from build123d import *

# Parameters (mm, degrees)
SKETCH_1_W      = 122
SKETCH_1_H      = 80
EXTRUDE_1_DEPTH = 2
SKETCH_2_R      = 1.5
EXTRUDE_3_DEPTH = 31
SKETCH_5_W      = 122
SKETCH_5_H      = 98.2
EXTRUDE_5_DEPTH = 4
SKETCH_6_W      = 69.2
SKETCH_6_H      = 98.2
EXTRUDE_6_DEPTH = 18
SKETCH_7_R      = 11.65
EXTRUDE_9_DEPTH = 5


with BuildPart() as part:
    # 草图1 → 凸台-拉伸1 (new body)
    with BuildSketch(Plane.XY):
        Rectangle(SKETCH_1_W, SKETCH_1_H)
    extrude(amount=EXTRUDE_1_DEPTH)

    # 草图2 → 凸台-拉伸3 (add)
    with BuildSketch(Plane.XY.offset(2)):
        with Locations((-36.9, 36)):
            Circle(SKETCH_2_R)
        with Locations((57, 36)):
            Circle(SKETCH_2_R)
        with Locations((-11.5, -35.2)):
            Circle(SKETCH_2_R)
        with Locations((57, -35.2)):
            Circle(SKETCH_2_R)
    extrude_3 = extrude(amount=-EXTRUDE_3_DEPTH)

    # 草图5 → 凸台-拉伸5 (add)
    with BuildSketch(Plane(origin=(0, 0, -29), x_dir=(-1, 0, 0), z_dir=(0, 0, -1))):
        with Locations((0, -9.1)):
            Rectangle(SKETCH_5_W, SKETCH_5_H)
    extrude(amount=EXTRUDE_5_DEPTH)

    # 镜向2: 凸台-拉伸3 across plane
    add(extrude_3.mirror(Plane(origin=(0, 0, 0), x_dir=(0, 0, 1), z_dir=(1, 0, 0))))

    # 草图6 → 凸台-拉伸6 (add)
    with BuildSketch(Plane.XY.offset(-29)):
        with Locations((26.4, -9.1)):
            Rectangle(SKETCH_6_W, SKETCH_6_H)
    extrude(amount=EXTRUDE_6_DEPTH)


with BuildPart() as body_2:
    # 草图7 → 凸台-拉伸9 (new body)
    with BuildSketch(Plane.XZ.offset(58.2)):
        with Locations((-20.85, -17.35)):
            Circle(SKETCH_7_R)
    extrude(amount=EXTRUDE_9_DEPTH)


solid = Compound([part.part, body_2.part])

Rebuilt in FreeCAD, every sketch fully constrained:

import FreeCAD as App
import Part
import Sketcher
Q = App.Units.Quantity

doc = App.newDocument("Part")
params = doc.addObject("Spreadsheet::Sheet", "Params")
for row, (alias, value) in enumerate([
    ("sketch1_width", "122 mm"),
    ("sketch1_height", "80 mm"),
    ("pad1_length", "2 mm"),
    ("sketch2_diameter", "3 mm"),
    ("pad2_length", "31 mm"),
    ("sketch3_width", "122 mm"),
    ("sketch3_height", "98.2 mm"),
    ("pad3_length", "4 mm"),
    ("sketch4_width", "69.2 mm"),
    ("sketch4_height", "98.2 mm"),
    ("pad4_length", "18 mm"),
    ("sketch5_diameter", "23.3 mm"),
    ("pad5_length", "5 mm"),
], start=1):
    params.set(f"A{row}", alias)
    params.set(f"B{row}", "=" + value)
    params.setAlias(f"B{row}", alias)

body = doc.addObject("PartDesign::Body", "Body")

sketch1 = doc.addObject("Sketcher::SketchObject", "Sketch")
body.addObject(sketch1)
sketch1.AttachmentSupport = (doc.XY_Plane, [""])
sketch1.MapMode = "FlatFace"
sketch1.addGeometry([
    Part.LineSegment(App.Vector(-61, 40, 0), App.Vector(-61, -40, 0)),
    Part.LineSegment(App.Vector(-61, -40, 0), App.Vector(61, -40, 0)),
    Part.LineSegment(App.Vector(61, -40, 0), App.Vector(61, 40, 0)),
    Part.LineSegment(App.Vector(61, 40, 0), App.Vector(-61, 40, 0)),
], False)
sketch1.addConstraint([
    Sketcher.Constraint("Coincident", 0, 2, 1, 1),
    Sketcher.Constraint("Coincident", 1, 2, 2, 1),
    Sketcher.Constraint("Coincident", 2, 2, 3, 1),
    Sketcher.Constraint("Coincident", 3, 2, 0, 1),
    Sketcher.Constraint("Vertical", 0),
    Sketcher.Constraint("Horizontal", 1),
    Sketcher.Constraint("Vertical", 2),
    Sketcher.Constraint("Horizontal", 3),
    Sketcher.Constraint("Symmetric", 0, 2, 2, 2, -1, 1),
    Sketcher.Constraint("DistanceX", 1, 1, 1, 2, Q("122 mm")),
    Sketcher.Constraint("DistanceY", 0, 2, 0, 1, Q("80 mm")),
])
sketch1.setExpression("Constraints[9]", "Params.sketch1_width")
sketch1.setExpression("Constraints[10]", "Params.sketch1_height")
pad1 = doc.addObject("PartDesign::Pad", "Pad")
body.addObject(pad1)
pad1.Profile = sketch1
pad1.setExpression("Length", "Params.pad1_length")

sketch2 = doc.addObject("Sketcher::SketchObject", "Sketch001")
body.addObject(sketch2)
sketch2.AttachmentSupport = (doc.XY_Plane, [""])
sketch2.MapMode = "FlatFace"
sketch2.AttachmentOffset = App.Placement(App.Vector(0, 0, 2), App.Rotation())
sketch2.addGeometry([
    Part.Circle(App.Vector(-36.9, 36, 0), App.Vector(0, 0, 1), 1.5),
    Part.Circle(App.Vector(57, 36, 0), App.Vector(0, 0, 1), 1.5),
    Part.Circle(App.Vector(-11.5, -35.2, 0), App.Vector(0, 0, 1), 1.5),
    Part.Circle(App.Vector(57, -35.2, 0), App.Vector(0, 0, 1), 1.5),
], False)
sketch2.addConstraint([
    Sketcher.Constraint("Equal", 0, 1),
    Sketcher.Constraint("Equal", 1, 2),
    Sketcher.Constraint("Equal", 2, 3),
    Sketcher.Constraint("Horizontal", 0, 3, 1, 3),
    Sketcher.Constraint("Horizontal", 2, 3, 3, 3),
    Sketcher.Constraint("Vertical", 1, 3, 3, 3),
    Sketcher.Constraint("Diameter", 0, Q("3 mm")),
    Sketcher.Constraint("DistanceY", -1, 1, 0, 3, Q("36 mm")),
    Sketcher.Constraint("DistanceX", -1, 1, 1, 3, Q("57 mm")),
    Sketcher.Constraint("DistanceX", 0, 3, -1, 1, Q("36.9 mm")),
    Sketcher.Constraint("DistanceX", 2, 3, -1, 1, Q("11.5 mm")),
    Sketcher.Constraint("DistanceY", 2, 3, -1, 1, Q("35.2 mm")),
])
sketch2.setExpression("Constraints[6]", "Params.sketch2_diameter")
pad2 = doc.addObject("PartDesign::Pad", "Pad001")
body.addObject(pad2)
pad2.Profile = sketch2
pad2.setExpression("Length", "Params.pad2_length")
pad2.Reversed = True

sketch3 = doc.addObject("Sketcher::SketchObject", "Sketch002")
body.addObject(sketch3)
sketch3.AttachmentSupport = (doc.XY_Plane, [""])
sketch3.MapMode = "FlatFace"
sketch3.AttachmentOffset = App.Placement(App.Vector(0, 0, -29), App.Rotation())
sketch3.addGeometry([
    Part.LineSegment(App.Vector(61, 40, 0), App.Vector(61, -58, 0)),
    Part.LineSegment(App.Vector(61, -58, 0), App.Vector(-61, -58, 0)),
    Part.LineSegment(App.Vector(-61, -58, 0), App.Vector(-61, 40, 0)),
    Part.LineSegment(App.Vector(-61, 40, 0), App.Vector(61, 40, 0)),
], False)
sketch3.addConstraint([
    Sketcher.Constraint("Coincident", 0, 2, 1, 1),
    Sketcher.Constraint("Coincident", 1, 2, 2, 1),
    Sketcher.Constraint("Coincident", 2, 2, 3, 1),
    Sketcher.Constraint("Coincident", 3, 2, 0, 1),
    Sketcher.Constraint("Vertical", 0),
    Sketcher.Constraint("Horizontal", 1),
    Sketcher.Constraint("Vertical", 2),
    Sketcher.Constraint("Horizontal", 3),
    Sketcher.Constraint("DistanceX", 1, 2, 1, 1, Q("122 mm")),
    Sketcher.Constraint("DistanceY", 0, 2, 0, 1, Q("98.2 mm")),
    Sketcher.Constraint("DistanceX", -1, 1, 0, 2, Q("61 mm")),
    Sketcher.Constraint("DistanceY", -1, 1, 2, 2, Q("40 mm")),
])
sketch3.setExpression("Constraints[8]", "Params.sketch3_width")
sketch3.setExpression("Constraints[9]", "Params.sketch3_height")
pad3 = doc.addObject("PartDesign::Pad", "Pad002")
body.addObject(pad3)
pad3.Profile = sketch3
pad3.setExpression("Length", "Params.pad3_length")
pad3.Reversed = True
doc.recompute()

mirrored = doc.addObject("PartDesign::Mirrored", "Mirrored")
body.addObject(mirrored)
mirrored.Originals = [pad2]
mirrored.MirrorPlane = (doc.YZ_Plane, [""])
body.Tip = mirrored

sketch4 = doc.addObject("Sketcher::SketchObject", "Sketch003")
body.addObject(sketch4)
sketch4.AttachmentSupport = (doc.XY_Plane, [""])
sketch4.MapMode = "FlatFace"
sketch4.AttachmentOffset = App.Placement(App.Vector(0, 0, -29), App.Rotation())
sketch4.addGeometry([
    Part.LineSegment(App.Vector(-8, 40, 0), App.Vector(-8, -58, 0)),
    Part.LineSegment(App.Vector(-8, -58, 0), App.Vector(61, -58, 0)),
    Part.LineSegment(App.Vector(61, -58, 0), App.Vector(61, 40, 0)),
    Part.LineSegment(App.Vector(61, 40, 0), App.Vector(-8, 40, 0)),
], False)
sketch4.addConstraint([
    Sketcher.Constraint("Coincident", 0, 2, 1, 1),
    Sketcher.Constraint("Coincident", 1, 2, 2, 1),
    Sketcher.Constraint("Coincident", 2, 2, 3, 1),
    Sketcher.Constraint("Coincident", 3, 2, 0, 1),
    Sketcher.Constraint("Vertical", 0),
    Sketcher.Constraint("Horizontal", 1),
    Sketcher.Constraint("Vertical", 2),
    Sketcher.Constraint("Horizontal", 3),
    Sketcher.Constraint("DistanceX", 1, 1, 1, 2, Q("69.2 mm")),
    Sketcher.Constraint("DistanceY", 0, 2, 0, 1, Q("98.2 mm")),
    Sketcher.Constraint("DistanceX", -1, 1, 1, 2, Q("61 mm")),
    Sketcher.Constraint("DistanceY", -1, 1, 2, 2, Q("40 mm")),
])
sketch4.setExpression("Constraints[8]", "Params.sketch4_width")
sketch4.setExpression("Constraints[9]", "Params.sketch4_height")
pad4 = doc.addObject("PartDesign::Pad", "Pad003")
body.addObject(pad4)
pad4.Profile = sketch4
pad4.setExpression("Length", "Params.pad4_length")
body2 = doc.addObject("PartDesign::Body", "Body001")

sketch5 = doc.addObject("Sketcher::SketchObject", "Sketch004")
body2.addObject(sketch5)
sketch5.AttachmentSupport = (doc.getObject("XZ_Plane001"), [""])
sketch5.MapMode = "FlatFace"
sketch5.AttachmentOffset = App.Placement(App.Vector(0, 0, 58.2), App.Rotation())
sketch5.addGeometry(Part.Circle(App.Vector(-21, -17, 0), App.Vector(0, 0, 1), 12), False)
sketch5.addConstraint([
    Sketcher.Constraint("Diameter", 0, Q("23.3 mm")),
    Sketcher.Constraint("DistanceX", 0, 3, -1, 1, Q("20.85 mm")),
    Sketcher.Constraint("DistanceY", 0, 3, -1, 1, Q("17.35 mm")),
])
sketch5.setExpression("Constraints[0]", "Params.sketch5_diameter")
pad5 = doc.addObject("PartDesign::Pad", "Pad004")
body2.addObject(pad5)
pad5.Profile = sketch5
pad5.setExpression("Length", "Params.pad5_length")

doc.recompute()
